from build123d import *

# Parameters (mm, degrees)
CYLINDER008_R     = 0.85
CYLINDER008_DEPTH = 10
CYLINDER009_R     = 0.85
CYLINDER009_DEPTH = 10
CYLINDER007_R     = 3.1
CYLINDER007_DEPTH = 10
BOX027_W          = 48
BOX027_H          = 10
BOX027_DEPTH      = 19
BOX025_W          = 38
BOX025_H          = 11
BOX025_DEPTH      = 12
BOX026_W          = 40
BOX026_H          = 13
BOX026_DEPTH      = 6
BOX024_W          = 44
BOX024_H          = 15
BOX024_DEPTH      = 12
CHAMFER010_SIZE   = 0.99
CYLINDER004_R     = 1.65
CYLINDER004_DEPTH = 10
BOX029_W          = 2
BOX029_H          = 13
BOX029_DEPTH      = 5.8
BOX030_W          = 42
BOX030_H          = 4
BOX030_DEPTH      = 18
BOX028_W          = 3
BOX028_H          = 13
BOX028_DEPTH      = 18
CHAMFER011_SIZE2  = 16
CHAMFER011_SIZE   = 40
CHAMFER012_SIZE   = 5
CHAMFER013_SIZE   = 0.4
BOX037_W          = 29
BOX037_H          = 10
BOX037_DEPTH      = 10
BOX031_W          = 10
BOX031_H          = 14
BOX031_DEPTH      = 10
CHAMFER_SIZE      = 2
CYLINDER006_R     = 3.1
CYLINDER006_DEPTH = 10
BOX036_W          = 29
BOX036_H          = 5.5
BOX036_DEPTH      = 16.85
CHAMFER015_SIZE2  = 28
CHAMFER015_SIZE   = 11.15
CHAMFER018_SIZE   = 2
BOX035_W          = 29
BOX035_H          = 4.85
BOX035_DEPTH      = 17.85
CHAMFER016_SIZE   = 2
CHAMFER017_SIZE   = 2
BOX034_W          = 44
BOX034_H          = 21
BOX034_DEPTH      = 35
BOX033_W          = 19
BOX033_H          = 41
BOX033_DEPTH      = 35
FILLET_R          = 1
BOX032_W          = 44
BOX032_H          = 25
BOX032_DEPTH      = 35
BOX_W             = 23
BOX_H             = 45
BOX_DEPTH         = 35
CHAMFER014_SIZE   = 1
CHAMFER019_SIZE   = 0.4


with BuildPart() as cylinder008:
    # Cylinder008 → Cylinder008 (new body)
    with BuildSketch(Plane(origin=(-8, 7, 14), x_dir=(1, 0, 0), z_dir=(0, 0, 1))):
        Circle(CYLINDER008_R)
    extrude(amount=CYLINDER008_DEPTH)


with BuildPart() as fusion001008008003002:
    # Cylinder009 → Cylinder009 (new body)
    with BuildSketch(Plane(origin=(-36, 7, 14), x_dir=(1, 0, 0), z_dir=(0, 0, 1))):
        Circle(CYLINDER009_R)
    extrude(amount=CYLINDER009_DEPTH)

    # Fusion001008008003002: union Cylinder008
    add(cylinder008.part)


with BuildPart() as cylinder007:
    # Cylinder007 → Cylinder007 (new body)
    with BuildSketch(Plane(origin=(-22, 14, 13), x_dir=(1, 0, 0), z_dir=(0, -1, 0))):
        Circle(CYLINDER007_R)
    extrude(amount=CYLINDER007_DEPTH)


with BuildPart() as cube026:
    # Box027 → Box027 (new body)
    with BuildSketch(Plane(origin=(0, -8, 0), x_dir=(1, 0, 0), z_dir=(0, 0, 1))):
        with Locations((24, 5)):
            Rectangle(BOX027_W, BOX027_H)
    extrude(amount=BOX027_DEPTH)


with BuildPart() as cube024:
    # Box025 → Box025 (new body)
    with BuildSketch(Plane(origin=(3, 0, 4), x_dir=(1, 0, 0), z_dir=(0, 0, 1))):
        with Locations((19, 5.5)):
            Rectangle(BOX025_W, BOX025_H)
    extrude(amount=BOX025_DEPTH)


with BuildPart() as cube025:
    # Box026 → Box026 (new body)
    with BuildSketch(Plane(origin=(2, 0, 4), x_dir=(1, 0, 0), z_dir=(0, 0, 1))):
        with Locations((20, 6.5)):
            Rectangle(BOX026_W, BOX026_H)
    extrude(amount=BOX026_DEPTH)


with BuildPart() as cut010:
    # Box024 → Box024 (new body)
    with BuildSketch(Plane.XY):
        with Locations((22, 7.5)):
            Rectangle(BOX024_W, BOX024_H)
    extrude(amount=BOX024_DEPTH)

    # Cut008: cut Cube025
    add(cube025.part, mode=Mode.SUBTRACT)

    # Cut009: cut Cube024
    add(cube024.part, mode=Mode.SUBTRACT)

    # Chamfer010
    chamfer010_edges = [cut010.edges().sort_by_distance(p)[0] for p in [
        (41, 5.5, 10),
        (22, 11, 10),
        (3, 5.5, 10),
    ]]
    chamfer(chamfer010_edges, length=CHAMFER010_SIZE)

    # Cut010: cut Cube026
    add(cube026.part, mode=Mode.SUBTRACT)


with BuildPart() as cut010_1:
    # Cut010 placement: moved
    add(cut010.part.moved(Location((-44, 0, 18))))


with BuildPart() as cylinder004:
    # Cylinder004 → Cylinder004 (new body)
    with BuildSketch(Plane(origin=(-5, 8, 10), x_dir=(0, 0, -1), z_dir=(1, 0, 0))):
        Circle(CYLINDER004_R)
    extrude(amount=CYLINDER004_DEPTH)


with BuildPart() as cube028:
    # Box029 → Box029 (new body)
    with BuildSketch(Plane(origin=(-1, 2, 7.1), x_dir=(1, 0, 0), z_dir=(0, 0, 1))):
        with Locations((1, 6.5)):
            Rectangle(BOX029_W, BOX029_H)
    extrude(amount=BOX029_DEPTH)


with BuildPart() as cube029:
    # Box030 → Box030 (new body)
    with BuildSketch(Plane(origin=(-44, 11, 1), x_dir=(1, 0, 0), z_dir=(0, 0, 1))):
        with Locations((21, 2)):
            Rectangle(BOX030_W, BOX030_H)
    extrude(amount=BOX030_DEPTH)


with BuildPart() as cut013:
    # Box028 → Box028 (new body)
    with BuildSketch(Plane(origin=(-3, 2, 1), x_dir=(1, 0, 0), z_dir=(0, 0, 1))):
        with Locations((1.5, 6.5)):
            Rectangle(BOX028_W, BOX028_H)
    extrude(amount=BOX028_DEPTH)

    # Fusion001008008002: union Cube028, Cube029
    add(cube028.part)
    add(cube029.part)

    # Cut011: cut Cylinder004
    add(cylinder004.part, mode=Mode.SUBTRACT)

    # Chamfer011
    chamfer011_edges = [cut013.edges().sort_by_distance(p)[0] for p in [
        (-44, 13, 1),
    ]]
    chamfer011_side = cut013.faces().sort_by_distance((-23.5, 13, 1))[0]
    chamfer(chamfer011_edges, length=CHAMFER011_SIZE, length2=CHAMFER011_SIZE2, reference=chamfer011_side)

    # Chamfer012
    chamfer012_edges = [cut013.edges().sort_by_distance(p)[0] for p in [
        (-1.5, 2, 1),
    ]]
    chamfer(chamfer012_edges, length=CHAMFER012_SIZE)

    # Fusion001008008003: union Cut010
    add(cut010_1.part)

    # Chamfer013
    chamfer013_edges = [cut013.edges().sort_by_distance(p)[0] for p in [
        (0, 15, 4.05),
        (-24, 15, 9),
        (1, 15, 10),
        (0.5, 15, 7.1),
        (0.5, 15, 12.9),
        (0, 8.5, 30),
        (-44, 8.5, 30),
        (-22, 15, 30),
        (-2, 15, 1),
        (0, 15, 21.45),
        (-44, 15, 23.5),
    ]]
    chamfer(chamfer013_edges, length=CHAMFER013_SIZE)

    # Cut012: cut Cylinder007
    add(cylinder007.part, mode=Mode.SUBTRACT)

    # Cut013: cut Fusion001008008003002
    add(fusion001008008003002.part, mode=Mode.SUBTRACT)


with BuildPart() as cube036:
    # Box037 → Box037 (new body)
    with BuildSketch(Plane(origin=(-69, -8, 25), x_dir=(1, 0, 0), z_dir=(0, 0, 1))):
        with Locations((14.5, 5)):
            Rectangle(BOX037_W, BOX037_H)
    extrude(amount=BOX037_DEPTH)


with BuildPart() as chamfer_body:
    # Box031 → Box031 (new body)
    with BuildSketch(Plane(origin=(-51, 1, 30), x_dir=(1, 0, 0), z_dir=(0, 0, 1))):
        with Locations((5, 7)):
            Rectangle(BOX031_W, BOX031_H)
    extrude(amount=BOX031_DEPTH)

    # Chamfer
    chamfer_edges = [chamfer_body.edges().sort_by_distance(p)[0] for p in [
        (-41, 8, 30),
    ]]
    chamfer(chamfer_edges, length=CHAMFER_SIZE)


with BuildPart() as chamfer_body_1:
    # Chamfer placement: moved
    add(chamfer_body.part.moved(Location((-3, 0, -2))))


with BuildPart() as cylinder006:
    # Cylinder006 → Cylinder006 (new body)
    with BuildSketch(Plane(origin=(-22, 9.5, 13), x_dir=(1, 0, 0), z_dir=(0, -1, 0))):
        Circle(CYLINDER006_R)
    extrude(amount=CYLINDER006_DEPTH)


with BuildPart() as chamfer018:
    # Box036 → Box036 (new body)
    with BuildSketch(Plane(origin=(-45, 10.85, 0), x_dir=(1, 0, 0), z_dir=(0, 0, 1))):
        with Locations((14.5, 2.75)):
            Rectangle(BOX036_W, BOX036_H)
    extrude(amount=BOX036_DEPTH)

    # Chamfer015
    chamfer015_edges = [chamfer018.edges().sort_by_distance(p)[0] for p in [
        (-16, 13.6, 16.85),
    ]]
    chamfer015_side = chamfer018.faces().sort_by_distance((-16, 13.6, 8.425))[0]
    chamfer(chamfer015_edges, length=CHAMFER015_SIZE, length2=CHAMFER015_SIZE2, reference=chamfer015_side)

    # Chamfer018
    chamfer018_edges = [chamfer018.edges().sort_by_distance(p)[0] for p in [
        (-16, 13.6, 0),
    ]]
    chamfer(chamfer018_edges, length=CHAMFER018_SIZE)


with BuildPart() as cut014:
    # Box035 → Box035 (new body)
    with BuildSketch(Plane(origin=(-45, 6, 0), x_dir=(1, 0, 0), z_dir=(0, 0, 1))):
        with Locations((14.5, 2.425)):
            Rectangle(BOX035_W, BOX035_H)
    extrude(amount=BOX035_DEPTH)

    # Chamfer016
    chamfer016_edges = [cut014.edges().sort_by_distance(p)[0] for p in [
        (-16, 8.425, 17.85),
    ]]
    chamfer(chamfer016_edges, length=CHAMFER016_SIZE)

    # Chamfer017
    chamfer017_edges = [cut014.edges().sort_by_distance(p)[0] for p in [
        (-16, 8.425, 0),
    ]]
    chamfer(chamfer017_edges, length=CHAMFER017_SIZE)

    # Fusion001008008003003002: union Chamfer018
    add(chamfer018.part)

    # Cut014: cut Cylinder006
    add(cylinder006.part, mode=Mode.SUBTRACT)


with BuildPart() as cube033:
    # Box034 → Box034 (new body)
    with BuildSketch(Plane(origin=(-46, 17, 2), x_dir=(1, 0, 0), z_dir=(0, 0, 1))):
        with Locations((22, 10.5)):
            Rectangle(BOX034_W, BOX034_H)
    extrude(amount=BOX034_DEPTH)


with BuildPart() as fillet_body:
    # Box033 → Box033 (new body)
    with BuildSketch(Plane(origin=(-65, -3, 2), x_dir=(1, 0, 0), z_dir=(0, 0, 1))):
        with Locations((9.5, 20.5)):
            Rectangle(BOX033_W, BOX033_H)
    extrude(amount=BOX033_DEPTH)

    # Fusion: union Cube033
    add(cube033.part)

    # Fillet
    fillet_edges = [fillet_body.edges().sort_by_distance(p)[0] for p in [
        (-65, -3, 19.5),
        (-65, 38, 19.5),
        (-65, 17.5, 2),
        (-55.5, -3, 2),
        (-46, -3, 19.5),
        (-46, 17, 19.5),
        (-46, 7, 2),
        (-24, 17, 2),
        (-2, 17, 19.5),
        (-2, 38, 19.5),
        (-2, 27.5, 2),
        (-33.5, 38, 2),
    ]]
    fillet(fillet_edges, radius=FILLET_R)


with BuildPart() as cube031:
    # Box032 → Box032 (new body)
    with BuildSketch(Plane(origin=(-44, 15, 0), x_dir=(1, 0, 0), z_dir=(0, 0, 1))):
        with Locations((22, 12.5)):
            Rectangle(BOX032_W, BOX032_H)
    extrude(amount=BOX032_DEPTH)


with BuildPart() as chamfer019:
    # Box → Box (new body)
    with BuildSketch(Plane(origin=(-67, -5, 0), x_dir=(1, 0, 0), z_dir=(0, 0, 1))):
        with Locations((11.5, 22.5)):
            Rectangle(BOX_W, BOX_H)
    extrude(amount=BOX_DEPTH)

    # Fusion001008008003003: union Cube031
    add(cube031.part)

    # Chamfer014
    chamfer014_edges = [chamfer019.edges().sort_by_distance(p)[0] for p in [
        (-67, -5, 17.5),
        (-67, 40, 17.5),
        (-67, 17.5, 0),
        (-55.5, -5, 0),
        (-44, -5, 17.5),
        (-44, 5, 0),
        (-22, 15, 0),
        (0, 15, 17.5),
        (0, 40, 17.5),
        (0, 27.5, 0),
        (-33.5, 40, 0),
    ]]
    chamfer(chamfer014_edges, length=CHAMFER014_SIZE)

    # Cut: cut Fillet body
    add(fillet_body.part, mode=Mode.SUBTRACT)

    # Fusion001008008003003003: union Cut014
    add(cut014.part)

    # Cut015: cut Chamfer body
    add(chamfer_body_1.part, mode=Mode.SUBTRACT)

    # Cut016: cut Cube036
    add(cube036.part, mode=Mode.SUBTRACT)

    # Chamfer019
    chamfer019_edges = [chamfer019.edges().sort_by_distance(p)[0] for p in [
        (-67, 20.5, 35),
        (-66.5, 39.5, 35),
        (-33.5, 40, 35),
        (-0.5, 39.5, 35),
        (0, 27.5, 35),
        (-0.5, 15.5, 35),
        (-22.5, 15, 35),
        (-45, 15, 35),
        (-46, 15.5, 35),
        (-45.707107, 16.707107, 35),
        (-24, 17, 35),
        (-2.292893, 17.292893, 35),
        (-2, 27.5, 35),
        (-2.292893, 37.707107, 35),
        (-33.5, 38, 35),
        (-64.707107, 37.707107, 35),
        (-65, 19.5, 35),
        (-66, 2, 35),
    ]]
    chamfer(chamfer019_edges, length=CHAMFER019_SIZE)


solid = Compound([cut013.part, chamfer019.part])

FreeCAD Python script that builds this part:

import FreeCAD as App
import Part
import Sketcher
from FreeCAD import Vector


def edges_at(feature, points):
    """Names of the edges that pass closest to the given points."""
    edges = feature.Shape.Edges
    near = lambda p: min(range(len(edges)), key=lambda i: edges[i].distToShape(Part.Vertex(*p))[0])
    return sorted({f"Edge{near(p) + 1}" for p in points})

doc = App.newDocument("Part")
body = doc.addObject("PartDesign::Body", "Body")

# Sketch on XY plane
sketch1 = doc.addObject("Sketcher::SketchObject", "Sketch")
body.addObject(sketch1)
sketch1.AttachmentSupport = (doc.XY_Plane, [""])
sketch1.MapMode = "FlatFace"
sketch1.AttachmentOffset = App.Placement(Vector(0, 0, 14), App.Rotation())
sketch1.addGeometry(Part.Circle(Vector(-8, 7, 0), Vector(0, 0, 1), 0.85), False)
sketch1.addConstraint([
    Sketcher.Constraint("Diameter", 0, 1.7),
    Sketcher.Constraint("DistanceX", 0, 3, -1, 1, 8.0),
    Sketcher.Constraint("DistanceY", -1, 1, 0, 3, 7.0),
])
pad1 = doc.addObject("PartDesign::Pad", "Pad")
body.addObject(pad1)
pad1.Profile = sketch1
pad1.Length = 10
body2 = doc.addObject("PartDesign::Body", "Body001")
body2.AllowCompound = True

# Sketch on XY plane
sketch2 = doc.addObject("Sketcher::SketchObject", "Sketch001")
body2.addObject(sketch2)
sketch2.AttachmentSupport = (doc.getObject("XY_Plane001"), [""])
sketch2.MapMode = "FlatFace"
sketch2.AttachmentOffset = App.Placement(Vector(0, 0, 14), App.Rotation())
sketch2.addGeometry(Part.Circle(Vector(-36, 7, 0), Vector(0, 0, 1), 0.85), False)
sketch2.addConstraint([
    Sketcher.Constraint("Diameter", 0, 1.7),
    Sketcher.Constraint("DistanceX", 0, 3, -1, 1, 36.0),
    Sketcher.Constraint("DistanceY", -1, 1, 0, 3, 7.0),
])
pad2 = doc.addObject("PartDesign::Pad", "Pad001")
body2.addObject(pad2)
pad2.Profile = sketch2
pad2.Length = 10
doc.recompute()

boolean = doc.addObject("PartDesign::Boolean", "Boolean")
body2.addObject(boolean)
boolean.Type = "Fuse"
boolean.addObjects([body])
body3 = doc.addObject("PartDesign::Body", "Body002")

# Sketch on XZ plane
sketch3 = doc.addObject("Sketcher::SketchObject", "Sketch002")
body3.addObject(sketch3)
sketch3.AttachmentSupport = (doc.getObject("XZ_Plane002"), [""])
sketch3.MapMode = "FlatFace"
sketch3.AttachmentOffset = App.Placement(Vector(0, 0, -14), App.Rotation())
sketch3.addGeometry(Part.Circle(Vector(-22, 13, 0), Vector(0, 0, 1), 3.1), False)
sketch3.addConstraint([
    Sketcher.Constraint("Diameter", 0, 6.2),
    Sketcher.Constraint("DistanceX", 0, 3, -1, 1, 22.0),
    Sketcher.Constraint("DistanceY", -1, 1, 0, 3, 13.0),
])
pad3 = doc.addObject("PartDesign::Pad", "Pad002")
body3.addObject(pad3)
pad3.Profile = sketch3
pad3.Length = 10
body4 = doc.addObject("PartDesign::Body", "Body003")

# Sketch on XY plane
sketch4 = doc.addObject("Sketcher::SketchObject", "Sketch003")
body4.addObject(sketch4)
sketch4.AttachmentSupport = (doc.getObject("XY_Plane003"), [""])
sketch4.MapMode = "FlatFace"
sketch4.addGeometry([
    Part.LineSegment(Vector(0, 2, 0), Vector(0, -8, 0)),
    Part.LineSegment(Vector(0, -8, 0), Vector(48, -8, 0)),
    Part.LineSegment(Vector(48, -8, 0), Vector(48, 2, 0)),
    Part.LineSegment(Vector(48, 2, 0), Vector(0, 2, 0)),
], False)
sketch4.addConstraint([
    Sketcher.Constraint("Coincident", 0, 2, 1, 1),
    Sketcher.Constraint("Coincident", 1, 2, 2, 1),
    Sketcher.Constraint("Coincident", 2, 2, 3, 1),
    Sketcher.Constraint("Coincident", 3, 2, 0, 1),
    Sketcher.Constraint("Vertical", 0),
    Sketcher.Constraint("Horizontal", 1),
    Sketcher.Constraint("Vertical", 2),
    Sketcher.Constraint("Horizontal", 3),
    Sketcher.Constraint("PointOnObject", 0, 2, -2),
    Sketcher.Constraint("DistanceX", 1, 1, 1, 2, 48.0),
    Sketcher.Constraint("DistanceY", 0, 2, 0, 1, 10.0),
    Sketcher.Constraint("DistanceY", 0, 2, -1, 1, 8.0),
])
pad4 = doc.addObject("PartDesign::Pad", "Pad003")
body4.addObject(pad4)
pad4.Profile = sketch4
pad4.Length = 19
body5 = doc.addObject("PartDesign::Body", "Body004")

# Sketch on XY plane
sketch5 = doc.addObject("Sketcher::SketchObject", "Sketch004")
body5.addObject(sketch5)
sketch5.AttachmentSupport = (doc.getObject("XY_Plane004"), [""])
sketch5.MapMode = "FlatFace"
sketch5.AttachmentOffset = App.Placement(Vector(0, 0, 4), App.Rotation())
sketch5.addGeometry([
    Part.LineSegment(Vector(3, 11, 0), Vector(3, 0, 0)),
    Part.LineSegment(Vector(3, 0, 0), Vector(41, 0, 0)),
    Part.LineSegment(Vector(41, 0, 0), Vector(41, 11, 0)),
    Part.LineSegment(Vector(41, 11, 0), Vector(3, 11, 0)),
], False)
sketch5.addConstraint([
    Sketcher.Constraint("Coincident", 0, 2, 1, 1),
    Sketcher.Constraint("Coincident", 1, 2, 2, 1),
    Sketcher.Constraint("Coincident", 2, 2, 3, 1),
    Sketcher.Constraint("Coincident", 3, 2, 0, 1),
    Sketcher.Constraint("Vertical", 0),
    Sketcher.Constraint("Horizontal", 1),
    Sketcher.Constraint("Vertical", 2),
    Sketcher.Constraint("Horizontal", 3),
    Sketcher.Constraint("PointOnObject", 0, 2, -1),
    Sketcher.Constraint("DistanceX", 1, 1, 1, 2, 38.0),
    Sketcher.Constraint("DistanceY", 0, 2, 0, 1, 11.0),
    Sketcher.Constraint("DistanceX", -1, 1, 0, 2, 3.0),
])
pad5 = doc.addObject("PartDesign::Pad", "Pad004")
body5.addObject(pad5)
pad5.Profile = sketch5
pad5.Length = 12
body6 = doc.addObject("PartDesign::Body", "Body005")

# Sketch on XY plane
sketch6 = doc.addObject("Sketcher::SketchObject", "Sketch005")
body6.addObject(sketch6)
sketch6.AttachmentSupport = (doc.getObject("XY_Plane005"), [""])
sketch6.MapMode = "FlatFace"
sketch6.AttachmentOffset = App.Placement(Vector(0, 0, 4), App.Rotation())
sketch6.addGeometry([
    Part.LineSegment(Vector(2, 13, 0), Vector(2, 0, 0)),
    Part.LineSegment(Vector(2, 0, 0), Vector(42, 0, 0)),
    Part.LineSegment(Vector(42, 0, 0), Vector(42, 13, 0)),
    Part.LineSegment(Vector(42, 13, 0), Vector(2, 13, 0)),
], False)
sketch6.addConstraint([
    Sketcher.Constraint("Coincident", 0, 2, 1, 1),
    Sketcher.Constraint("Coincident", 1, 2, 2, 1),
    Sketcher.Constraint("Coincident", 2, 2, 3, 1),
    Sketcher.Constraint("Coincident", 3, 2, 0, 1),
    Sketcher.Constraint("Vertical", 0),
    Sketcher.Constraint("Horizontal", 1),
    Sketcher.Constraint("Vertical", 2),
    Sketcher.Constraint("Horizontal", 3),
    Sketcher.Constraint("PointOnObject", 0, 2, -1),
    Sketcher.Constraint("DistanceX", 1, 1, 1, 2, 40.0),
    Sketcher.Constraint("DistanceY", 0, 2, 0, 1, 13.0),
    Sketcher.Constraint("DistanceX", -1, 1, 0, 2, 2.0),
])
pad6 = doc.addObject("PartDesign::Pad", "Pad005")
body6.addObject(pad6)
pad6.Profile = sketch6
pad6.Length = 6
body7 = doc.addObject("PartDesign::Body", "Body006")

# Sketch on XY plane
sketch7 = doc.addObject("Sketcher::SketchObject", "Sketch006")
body7.addObject(sketch7)
sketch7.AttachmentSupport = (doc.getObject("XY_Plane006"), [""])
sketch7.MapMode = "FlatFace"
sketch7.addGeometry([
    Part.LineSegment(Vector(0, 15, 0), Vector(0, 0, 0)),
    Part.LineSegment(Vector(0, 0, 0), Vector(44, 0, 0)),
    Part.LineSegment(Vector(44, 0, 0), Vector(44, 15, 0)),
    Part.LineSegment(Vector(44, 15, 0), Vector(0, 15, 0)),
], False)
sketch7.addConstraint([
    Sketcher.Constraint("Coincident", 0, 2, 1, 1),
    Sketcher.Constraint("Coincident", 1, 2, 2, 1),
    Sketcher.Constraint("Coincident", 2, 2, 3, 1),
    Sketcher.Constraint("Coincident", 3, 2, 0, 1),
    Sketcher.Constraint("Vertical", 0),
    Sketcher.Constraint("Horizontal", 1),
    Sketcher.Constraint("Vertical", 2),
    Sketcher.Constraint("Horizontal", 3),
    Sketcher.Constraint("Coincident", 0, 2, -1, 1),
    Sketcher.Constraint("DistanceX", 1, 1, 1, 2, 44.0),
    Sketcher.Constraint("DistanceY", 0, 2, 0, 1, 15.0),
])
pad7 = doc.addObject("PartDesign::Pad", "Pad006")
body7.addObject(pad7)
pad7.Profile = sketch7
pad7.Length = 12
doc.recompute()

boolean2 = doc.addObject("PartDesign::Boolean", "Boolean001")
body7.addObject(boolean2)
boolean2.Type = "Cut"
boolean2.addObjects([body6])
doc.recompute()

boolean3 = doc.addObject("PartDesign::Boolean", "Boolean002")
body7.addObject(boolean3)
boolean3.Type = "Cut"
boolean3.addObjects([body5])
doc.recompute()

chamfer = doc.addObject("PartDesign::Chamfer", "Chamfer")
body7.addObject(chamfer)
chamfer.Base = (boolean3, edges_at(boolean3, [(41, 5.5, 10), (22, 11, 10), (3, 5.5, 10)]))
chamfer.Size = 0.99
doc.recompute()

boolean4 = doc.addObject("PartDesign::Boolean", "Boolean003")
body7.addObject(boolean4)
boolean4.Type = "Cut"
boolean4.addObjects([body4])
body8 = doc.addObject("PartDesign::Body", "Body007")
doc.recompute()

body7.Placement = App.Placement(Vector(-44, 0, 18), App.Rotation(Vector(0, 0, 1), 0))
boolean5 = doc.addObject("PartDesign::Boolean", "Boolean004")
body8.addObject(boolean5)
boolean5.Type = "Fuse"
boolean5.addObjects([body7])
body9 = doc.addObject("PartDesign::Body", "Body008")

# Sketch on YZ plane
sketch8 = doc.addObject("Sketcher::SketchObject", "Sketch007")
body9.addObject(sketch8)
sketch8.AttachmentSupport = (doc.getObject("YZ_Plane008"), [""])
sketch8.MapMode = "FlatFace"
sketch8.AttachmentOffset = App.Placement(Vector(0, 0, -5), App.Rotation())
sketch8.addGeometry(Part.Circle(Vector(8, 10, 0), Vector(0, 0, 1), 1.65), False)
sketch8.addConstraint([
    Sketcher.Constraint("Diameter", 0, 3.3),
    Sketcher.Constraint("DistanceX", -1, 1, 0, 3, 8.0),
    Sketcher.Constraint("DistanceY", -1, 1, 0, 3, 10.0),
])
pad8 = doc.addObject("PartDesign::Pad", "Pad007")
body9.addObject(pad8)
pad8.Profile = sketch8
pad8.Length = 10
body10 = doc.addObject("PartDesign::Body", "Body009")

# Sketch on XY plane
sketch9 = doc.addObject("Sketcher::SketchObject", "Sketch008")
body10.addObject(sketch9)
sketch9.AttachmentSupport = (doc.getObject("XY_Plane009"), [""])
sketch9.MapMode = "FlatFace"
sketch9.AttachmentOffset = App.Placement(Vector(0, 0, 7.1), App.Rotation())
sketch9.addGeometry([
    Part.LineSegment(Vector(-1, 15, 0), Vector(-1, 2, 0)),
    Part.LineSegment(Vector(-1, 2, 0), Vector(1, 2, 0)),
    Part.LineSegment(Vector(1, 2, 0), Vector(1, 15, 0)),
    Part.LineSegment(Vector(1, 15, 0), Vector(-1, 15, 0)),
], False)
sketch9.addConstraint([
    Sketcher.Constraint("Coincident", 0, 2, 1, 1),
    Sketcher.Constraint("Coincident", 1, 2, 2, 1),
    Sketcher.Constraint("Coincident", 2, 2, 3, 1),
    Sketcher.Constraint("Coincident", 3, 2, 0, 1),
    Sketcher.Constraint("Vertical", 0),
    Sketcher.Constraint("Horizontal", 1),
    Sketcher.Constraint("Vertical", 2),
    Sketcher.Constraint("Horizontal", 3),
    Sketcher.Constraint("DistanceX", 1, 1, 1, 2, 2.0),
    Sketcher.Constraint("DistanceY", 0, 2, 0, 1, 13.0),
    Sketcher.Constraint("DistanceX", 0, 2, -1, 1, 1.0),
    Sketcher.Constraint("DistanceY", -1, 1, 0, 2, 2.0),
])
pad9 = doc.addObject("PartDesign::Pad", "Pad008")
body10.addObject(pad9)
pad9.Profile = sketch9
pad9.Length = 5.8
body11 = doc.addObject("PartDesign::Body", "Body010")

# Sketch on XY plane
sketch10 = doc.addObject("Sketcher::SketchObject", "Sketch009")
body11.addObject(sketch10)
sketch10.AttachmentSupport = (doc.getObject("XY_Plane010"), [""])
sketch10.MapMode = "FlatFace"
sketch10.AttachmentOffset = App.Placement(Vector(0, 0, 1), App.Rotation())
sketch10.addGeometry([
    Part.LineSegment(Vector(-44, 15, 0), Vector(-44, 11, 0)),
    Part.LineSegment(Vector(-44, 11, 0), Vector(-2, 11, 0)),
    Part.LineSegment(Vector(-2, 11, 0), Vector(-2, 15, 0)),
    Part.LineSegment(Vector(-2, 15, 0), Vector(-44, 15, 0)),
], False)
sketch10.addConstraint([
    Sketcher.Constraint("Coincident", 0, 2, 1, 1),
    Sketcher.Constraint("Coincident", 1, 2, 2, 1),
    Sketcher.Constraint("Coincident", 2, 2, 3, 1),
    Sketcher.Constraint("Coincident", 3, 2, 0, 1),
    Sketcher.Constraint("Vertical", 0),
    Sketcher.Constraint("Horizontal", 1),
    Sketcher.Constraint("Vertical", 2),
    Sketcher.Constraint("Horizontal", 3),
    Sketcher.Constraint("DistanceX", 1, 1, 1, 2, 42.0),
    Sketcher.Constraint("DistanceY", 0, 2, 0, 1, 4.0),
    Sketcher.Constraint("DistanceX", 0, 2, -1, 1, 44.0),
    Sketcher.Constraint("DistanceY", -1, 1, 0, 2, 11.0),
])
pad10 = doc.addObject("PartDesign::Pad", "Pad009")
body11.addObject(pad10)
pad10.Profile = sketch10
pad10.Length = 18
body12 = doc.addObject("PartDesign::Body", "Body011")

# Sketch on XY plane
sketch11 = doc.addObject("Sketcher::SketchObject", "Sketch010")
body12.addObject(sketch11)
sketch11.AttachmentSupport = (doc.getObject("XY_Plane011"), [""])
sketch11.MapMode = "FlatFace"
sketch11.AttachmentOffset = App.Placement(Vector(0, 0, 1), App.Rotation())
sketch11.addGeometry([
    Part.LineSegment(Vector(-3, 15, 0), Vector(-3, 2, 0)),
    Part.LineSegment(Vector(-3, 2, 0), Vector(0, 2, 0)),
    Part.LineSegment(Vector(0, 2, 0), Vector(0, 15, 0)),
    Part.LineSegment(Vector(0, 15, 0), Vector(-3, 15, 0)),
], False)
sketch11.addConstraint([
    Sketcher.Constraint("Coincident", 0, 2, 1, 1),
    Sketcher.Constraint("Coincident", 1, 2, 2, 1),
    Sketcher.Constraint("Coincident", 2, 2, 3, 1),
    Sketcher.Constraint("Coincident", 3, 2, 0, 1),
    Sketcher.Constraint("Vertical", 0),
    Sketcher.Constraint("Horizontal", 1),
    Sketcher.Constraint("Vertical", 2),
    Sketcher.Constraint("Horizontal", 3),
    Sketcher.Constraint("PointOnObject", 1, 2, -2),
    Sketcher.Constraint("DistanceX", 1, 1, 1, 2, 3.0),
    Sketcher.Constraint("DistanceY", 0, 2, 0, 1, 13.0),
    Sketcher.Constraint("DistanceY", -1, 1, 0, 2, 2.0),
])
pad11 = doc.addObject("PartDesign::Pad", "Pad010")
body12.addObject(pad11)
pad11.Profile = sketch11
pad11.Length = 18
doc.recompute()

boolean6 = doc.addObject("PartDesign::Boolean", "Boolean005")
body12.addObject(boolean6)
boolean6.Type = "Fuse"
boolean6.addObjects([body10])
doc.recompute()

boolean7 = doc.addObject("PartDesign::Boolean", "Boolean006")
body12.addObject(boolean7)
boolean7.Type = "Fuse"
boolean7.addObjects([body11])
doc.recompute()

boolean8 = doc.addObject("PartDesign::Boolean", "Boolean007")
body12.addObject(boolean8)
boolean8.Type = "Cut"
boolean8.addObjects([body9])
doc.recompute()

chamfer2 = doc.addObject("PartDesign::Chamfer", "Chamfer001")
body12.addObject(chamfer2)
chamfer2.Base = (boolean8, edges_at(boolean8, [(-44, 13, 1)]))
chamfer2.ChamferType = "Two distances"
chamfer2.Size = 40
chamfer2.Size2 = 16
doc.recompute()

chamfer3 = doc.addObject("PartDesign::Chamfer", "Chamfer002")
body12.addObject(chamfer3)
chamfer3.Base = (chamfer2, edges_at(chamfer2, [(-1.5, 2, 1)]))
chamfer3.Size = 5
doc.recompute()

boolean9 = doc.addObject("PartDesign::Boolean", "Boolean008")
body12.addObject(boolean9)
boolean9.Type = "Fuse"
boolean9.addObjects([body8])
doc.recompute()

chamfer4 = doc.addObject("PartDesign::Chamfer", "Chamfer003")
body12.addObject(chamfer4)
chamfer4.Base = (boolean9, edges_at(boolean9, [
    (0, 15, 4.05),
    (-24, 15, 9),
    (1, 15, 10),
    (0.5, 15, 7.1),
    (0.5, 15, 12.9),
    (0, 8.5, 30),
    (-44, 8.5, 30),
    (-22, 15, 30),
    (-2, 15, 1),
    (0, 15, 21.45),
    (-44, 15, 23.5),
]))
chamfer4.Size = 0.4
doc.recompute()

boolean10 = doc.addObject("PartDesign::Boolean", "Boolean009")
body12.addObject(boolean10)
boolean10.Type = "Cut"
boolean10.addObjects([body3])
doc.recompute()

boolean11 = doc.addObject("PartDesign::Boolean", "Boolean010")
body12.addObject(boolean11)
boolean11.Type = "Cut"
boolean11.addObjects([body2])
body13 = doc.addObject("PartDesign::Body", "Body012")

# Sketch on XY plane
sketch12 = doc.addObject("Sketcher::SketchObject", "Sketch011")
body13.addObject(sketch12)
sketch12.AttachmentSupport = (doc.getObject("XY_Plane012"), [""])
sketch12.MapMode = "FlatFace"
sketch12.AttachmentOffset = App.Placement(Vector(0, 0, 25), App.Rotation())
sketch12.addGeometry([
    Part.LineSegment(Vector(-69, 2, 0), Vector(-69, -8, 0)),
    Part.LineSegment(Vector(-69, -8, 0), Vector(-40, -8, 0)),
    Part.LineSegment(Vector(-40, -8, 0), Vector(-40, 2, 0)),
    Part.LineSegment(Vector(-40, 2, 0), Vector(-69, 2, 0)),
], False)
sketch12.addConstraint([
    Sketcher.Constraint("Coincident", 0, 2, 1, 1),
    Sketcher.Constraint("Coincident", 1, 2, 2, 1),
    Sketcher.Constraint("Coincident", 2, 2, 3, 1),
    Sketcher.Constraint("Coincident", 3, 2, 0, 1),
    Sketcher.Constraint("Vertical", 0),
    Sketcher.Constraint("Horizontal", 1),
    Sketcher.Constraint("Vertical", 2),
    Sketcher.Constraint("Horizontal", 3),
    Sketcher.Constraint("DistanceX", 1, 1, 1, 2, 29.0),
    Sketcher.Constraint("DistanceY", 0, 2, 0, 1, 10.0),
    Sketcher.Constraint("DistanceX", 0, 2, -1, 1, 69.0),
    Sketcher.Constraint("DistanceY", 0, 2, -1, 1, 8.0),
])
pad12 = doc.addObject("PartDesign::Pad", "Pad011")
body13.addObject(pad12)
pad12.Profile = sketch12
pad12.Length = 10
body14 = doc.addObject("PartDesign::Body", "Body013")

# Sketch on XY plane
sketch13 = doc.addObject("Sketcher::SketchObject", "Sketch012")
body14.addObject(sketch13)
sketch13.AttachmentSupport = (doc.getObject("XY_Plane013"), [""])
sketch13.MapMode = "FlatFace"
sketch13.AttachmentOffset = App.Placement(Vector(0, 0, 30), App.Rotation())
sketch13.addGeometry([
    Part.LineSegment(Vector(-51, 15, 0), Vector(-51, 1, 0)),
    Part.LineSegment(Vector(-51, 1, 0), Vector(-41, 1, 0)),
    Part.LineSegment(Vector(-41, 1, 0), Vector(-41, 15, 0)),
    Part.LineSegment(Vector(-41, 15, 0), Vector(-51, 15, 0)),
], False)
sketch13.addConstraint([
    Sketcher.Constraint("Coincident", 0, 2, 1, 1),
    Sketcher.Constraint("Coincident", 1, 2, 2, 1),
    Sketcher.Constraint("Coincident", 2, 2, 3, 1),
    Sketcher.Constraint("Coincident", 3, 2, 0, 1),
    Sketcher.Constraint("Vertical", 0),
    Sketcher.Constraint("Horizontal", 1),
    Sketcher.Constraint("Vertical", 2),
    Sketcher.Constraint("Horizontal", 3),
    Sketcher.Constraint("DistanceX", 1, 1, 1, 2, 10.0),
    Sketcher.Constraint("DistanceY", 0, 2, 0, 1, 14.0),
    Sketcher.Constraint("DistanceX", 0, 2, -1, 1, 51.0),
    Sketcher.Constraint("DistanceY", -1, 1, 0, 2, 1.0),
])
pad13 = doc.addObject("PartDesign::Pad", "Pad012")
body14.addObject(pad13)
pad13.Profile = sketch13
pad13.Length = 10
doc.recompute()

chamfer5 = doc.addObject("PartDesign::Chamfer", "Chamfer004")
body14.addObject(chamfer5)
chamfer5.Base = (pad13, edges_at(pad13, [(-41, 8, 30)]))
chamfer5.Size = 2
body15 = doc.addObject("PartDesign::Body", "Body014")
doc.recompute()

body14.Placement = App.Placement(Vector(-3, 0, -2), App.Rotation(Vector(0, 0, 1), 0))
boolean12 = doc.addObject("PartDesign::Boolean", "Boolean011")
body15.addObject(boolean12)
boolean12.Type = "Fuse"
boolean12.addObjects([body14])
body16 = doc.addObject("PartDesign::Body", "Body015")

# Sketch on XZ plane
sketch14 = doc.addObject("Sketcher::SketchObject", "Sketch013")
body16.addObject(sketch14)
sketch14.AttachmentSupport = (doc.getObject("XZ_Plane015"), [""])
sketch14.MapMode = "FlatFace"
sketch14.AttachmentOffset = App.Placement(Vector(0, 0, -9.5), App.Rotation())
sketch14.addGeometry(Part.Circle(Vector(-22, 13, 0), Vector(0, 0, 1), 3.1), False)
sketch14.addConstraint([
    Sketcher.Constraint("Diameter", 0, 6.2),
    Sketcher.Constraint("DistanceX", 0, 3, -1, 1, 22.0),
    Sketcher.Constraint("DistanceY", -1, 1, 0, 3, 13.0),
])
pad14 = doc.addObject("PartDesign::Pad", "Pad013")
body16.addObject(pad14)
pad14.Profile = sketch14
pad14.Length = 10
body17 = doc.addObject("PartDesign::Body", "Body016")

# Sketch on XY plane
sketch15 = doc.addObject("Sketcher::SketchObject", "Sketch014")
body17.addObject(sketch15)
sketch15.AttachmentSupport = (doc.getObject("XY_Plane016"), [""])
sketch15.MapMode = "FlatFace"
sketch15.addGeometry([
    Part.LineSegment(Vector(-45, 16.35, 0), Vector(-45, 10.85, 0)),
    Part.LineSegment(Vector(-45, 10.85, 0), Vector(-16, 10.85, 0)),
    Part.LineSegment(Vector(-16, 10.85, 0), Vector(-16, 16.35, 0)),
    Part.LineSegment(Vector(-16, 16.35, 0), Vector(-45, 16.35, 0)),
], False)
sketch15.addConstraint([
    Sketcher.Constraint("Coincident", 0, 2, 1, 1),
    Sketcher.Constraint("Coincident", 1, 2, 2, 1),
    Sketcher.Constraint("Coincident", 2, 2, 3, 1),
    Sketcher.Constraint("Coincident", 3, 2, 0, 1),
    Sketcher.Constraint("Vertical", 0),
    Sketcher.Constraint("Horizontal", 1),
    Sketcher.Constraint("Vertical", 2),
    Sketcher.Constraint("Horizontal", 3),
    Sketcher.Constraint("DistanceX", 1, 1, 1, 2, 29.0),
    Sketcher.Constraint("DistanceY", 0, 2, 0, 1, 5.5),
    Sketcher.Constraint("DistanceX", 0, 2, -1, 1, 45.0),
    Sketcher.Constraint("DistanceY", -1, 1, 0, 2, 10.85),
])
pad15 = doc.addObject("PartDesign::Pad", "Pad014")
body17.addObject(pad15)
pad15.Profile = sketch15
pad15.Length = 16.85
doc.recompute()

chamfer6 = doc.addObject("PartDesign::Chamfer", "Chamfer005")
body17.addObject(chamfer6)
chamfer6.Base = (pad15, edges_at(pad15, [(-16, 13.6, 16.85)]))
chamfer6.ChamferType = "Two distances"
chamfer6.Size = 11.15
chamfer6.Size2 = 28
doc.recompute()

chamfer7 = doc.addObject("PartDesign::Chamfer", "Chamfer006")
body17.addObject(chamfer7)
chamfer7.Base = (chamfer6, edges_at(chamfer6, [(-16, 13.6, 0)]))
chamfer7.Size = 2
body18 = doc.addObject("PartDesign::Body", "Body017")

# Sketch on XY plane
sketch16 = doc.addObject("Sketcher::SketchObject", "Sketch015")
body18.addObject(sketch16)
sketch16.AttachmentSupport = (doc.getObject("XY_Plane017"), [""])
sketch16.MapMode = "FlatFace"
sketch16.addGeometry([
    Part.LineSegment(Vector(-45, 10.85, 0), Vector(-45, 6, 0)),
    Part.LineSegment(Vector(-45, 6, 0), Vector(-16, 6, 0)),
    Part.LineSegment(Vector(-16, 6, 0), Vector(-16, 10.85, 0)),
    Part.LineSegment(Vector(-16, 10.85, 0), Vector(-45, 10.85, 0)),
], False)
sketch16.addConstraint([
    Sketcher.Constraint("Coincident", 0, 2, 1, 1),
    Sketcher.Constraint("Coincident", 1, 2, 2, 1),
    Sketcher.Constraint("Coincident", 2, 2, 3, 1),
    Sketcher.Constraint("Coincident", 3, 2, 0, 1),
    Sketcher.Constraint("Vertical", 0),
    Sketcher.Constraint("Horizontal", 1),
    Sketcher.Constraint("Vertical", 2),
    Sketcher.Constraint("Horizontal", 3),
    Sketcher.Constraint("DistanceX", 1, 1, 1, 2, 29.0),
    Sketcher.Constraint("DistanceX", 0, 2, -1, 1, 45.0),
    Sketcher.Constraint("DistanceY", -1, 1, 0, 2, 6.0),
    Sketcher.Constraint("DistanceY", 0, 2, 0, 1, 4.85),
])
pad16 = doc.addObject("PartDesign::Pad", "Pad015")
body18.addObject(pad16)
pad16.Profile = sketch16
pad16.Length = 17.85
doc.recompute()

chamfer8 = doc.addObject("PartDesign::Chamfer", "Chamfer007")
body18.addObject(chamfer8)
chamfer8.Base = (pad16, edges_at(pad16, [(-16, 8.425, 17.85)]))
chamfer8.Size = 2
doc.recompute()

chamfer9 = doc.addObject("PartDesign::Chamfer", "Chamfer008")
body18.addObject(chamfer9)
chamfer9.Base = (chamfer8, edges_at(chamfer8, [(-16, 8.425, 0)]))
chamfer9.Size = 2
doc.recompute()

boolean13 = doc.addObject("PartDesign::Boolean", "Boolean012")
body18.addObject(boolean13)
boolean13.Type = "Fuse"
boolean13.addObjects([body17])
doc.recompute()

boolean14 = doc.addObject("PartDesign::Boolean", "Boolean013")
body18.addObject(boolean14)
boolean14.Type = "Cut"
boolean14.addObjects([body16])
body19 = doc.addObject("PartDesign::Body", "Body018")

# Sketch on XY plane
sketch17 = doc.addObject("Sketcher::SketchObject", "Sketch016")
body19.addObject(sketch17)
sketch17.AttachmentSupport = (doc.getObject("XY_Plane018"), [""])
sketch17.MapMode = "FlatFace"
sketch17.AttachmentOffset = App.Placement(Vector(0, 0, 2), App.Rotation())
sketch17.addGeometry([
    Part.LineSegment(Vector(-46, 38, 0), Vector(-46, 17, 0)),
    Part.LineSegment(Vector(-46, 17, 0), Vector(-2, 17, 0)),
    Part.LineSegment(Vector(-2, 17, 0), Vector(-2, 38, 0)),
    Part.LineSegment(Vector(-2, 38, 0), Vector(-46, 38, 0)),
], False)
sketch17.addConstraint([
    Sketcher.Constraint("Coincident", 0, 2, 1, 1),
    Sketcher.Constraint("Coincident", 1, 2, 2, 1),
    Sketcher.Constraint("Coincident", 2, 2, 3, 1),
    Sketcher.Constraint("Coincident", 3, 2, 0, 1),
    Sketcher.Constraint("Vertical", 0),
    Sketcher.Constraint("Horizontal", 1),
    Sketcher.Constraint("Vertical", 2),
    Sketcher.Constraint("Horizontal", 3),
    Sketcher.Constraint("DistanceX", 1, 1, 1, 2, 44.0),
    Sketcher.Constraint("DistanceY", 0, 2, 0, 1, 21.0),
    Sketcher.Constraint("DistanceX", 0, 2, -1, 1, 46.0),
    Sketcher.Constraint("DistanceY", -1, 1, 0, 2, 17.0),
])
pad17 = doc.addObject("PartDesign::Pad", "Pad016")
body19.addObject(pad17)
pad17.Profile = sketch17
pad17.Length = 35
body20 = doc.addObject("PartDesign::Body", "Body019")

# Sketch on XY plane
sketch18 = doc.addObject("Sketcher::SketchObject", "Sketch017")
body20.addObject(sketch18)
sketch18.AttachmentSupport = (doc.getObject("XY_Plane019"), [""])
sketch18.MapMode = "FlatFace"
sketch18.AttachmentOffset = App.Placement(Vector(0, 0, 2), App.Rotation())
sketch18.addGeometry([
    Part.LineSegment(Vector(-65, 38, 0), Vector(-65, -3, 0)),
    Part.LineSegment(Vector(-65, -3, 0), Vector(-46, -3, 0)),
    Part.LineSegment(Vector(-46, -3, 0), Vector(-46, 38, 0)),
    Part.LineSegment(Vector(-46, 38, 0), Vector(-65, 38, 0)),
], False)
sketch18.addConstraint([
    Sketcher.Constraint("Coincident", 0, 2, 1, 1),
    Sketcher.Constraint("Coincident", 1, 2, 2, 1),
    Sketcher.Constraint("Coincident", 2, 2, 3, 1),
    Sketcher.Constraint("Coincident", 3, 2, 0, 1),
    Sketcher.Constraint("Vertical", 0),
    Sketcher.Constraint("Horizontal", 1),
    Sketcher.Constraint("Vertical", 2),
    Sketcher.Constraint("Horizontal", 3),
    Sketcher.Constraint("DistanceX", 1, 1, 1, 2, 19.0),
    Sketcher.Constraint("DistanceY", 0, 2, 0, 1, 41.0),
    Sketcher.Constraint("DistanceX", 0, 2, -1, 1, 65.0),
    Sketcher.Constraint("DistanceY", 0, 2, -1, 1, 3.0),
])
pad18 = doc.addObject("PartDesign::Pad", "Pad017")
body20.addObject(pad18)
pad18.Profile = sketch18
pad18.Length = 35
doc.recompute()

boolean15 = doc.addObject("PartDesign::Boolean", "Boolean014")
body20.addObject(boolean15)
boolean15.Type = "Fuse"
boolean15.addObjects([body19])
doc.recompute()

fillet = doc.addObject("PartDesign::Fillet", "Fillet")
body20.addObject(fillet)
fillet.Base = (boolean15, edges_at(boolean15, [
    (-65, -3, 19.5),
    (-65, 38, 19.5),
    (-65, 17.5, 2),
    (-55.5, -3, 2),
    (-46, -3, 19.5),
    (-46, 17, 19.5),
    (-46, 7, 2),
    (-24, 17, 2),
    (-2, 17, 19.5),
    (-2, 38, 19.5),
    (-2, 27.5, 2),
    (-33.5, 38, 2),
]))
fillet.Radius = 1
body21 = doc.addObject("PartDesign::Body", "Body020")

# Sketch on XY plane
sketch19 = doc.addObject("Sketcher::SketchObject", "Sketch018")
body21.addObject(sketch19)
sketch19.AttachmentSupport = (doc.getObject("XY_Plane020"), [""])
sketch19.MapMode = "FlatFace"
sketch19.addGeometry([
    Part.LineSegment(Vector(-44, 40, 0), Vector(-44, 15, 0)),
    Part.LineSegment(Vector(-44, 15, 0), Vector(0, 15, 0)),
    Part.LineSegment(Vector(0, 15, 0), Vector(0, 40, 0)),
    Part.LineSegment(Vector(0, 40, 0), Vector(-44, 40, 0)),
], False)
sketch19.addConstraint([
    Sketcher.Constraint("Coincident", 0, 2, 1, 1),
    Sketcher.Constraint("Coincident", 1, 2, 2, 1),
    Sketcher.Constraint("Coincident", 2, 2, 3, 1),
    Sketcher.Constraint("Coincident", 3, 2, 0, 1),
    Sketcher.Constraint("Vertical", 0),
    Sketcher.Constraint("Horizontal", 1),
    Sketcher.Constraint("Vertical", 2),
    Sketcher.Constraint("Horizontal", 3),
    Sketcher.Constraint("PointOnObject", 1, 2, -2),
    Sketcher.Constraint("DistanceX", 1, 1, 1, 2, 44.0),
    Sketcher.Constraint("DistanceY", 0, 2, 0, 1, 25.0),
    Sketcher.Constraint("DistanceY", -1, 1, 0, 2, 15.0),
])
pad19 = doc.addObject("PartDesign::Pad", "Pad018")
body21.addObject(pad19)
pad19.Profile = sketch19
pad19.Length = 35
body22 = doc.addObject("PartDesign::Body", "Body021")

# Sketch on XY plane
sketch20 = doc.addObject("Sketcher::SketchObject", "Sketch019")
body22.addObject(sketch20)
sketch20.AttachmentSupport = (doc.getObject("XY_Plane021"), [""])
sketch20.MapMode = "FlatFace"
sketch20.addGeometry([
    Part.LineSegment(Vector(-67, 40, 0), Vector(-67, -5, 0)),
    Part.LineSegment(Vector(-67, -5, 0), Vector(-44, -5, 0)),
    Part.LineSegment(Vector(-44, -5, 0), Vector(-44, 40, 0)),
    Part.LineSegment(Vector(-44, 40, 0), Vector(-67, 40, 0)),
], False)
sketch20.addConstraint([
    Sketcher.Constraint("Coincident", 0, 2, 1, 1),
    Sketcher.Constraint("Coincident", 1, 2, 2, 1),
    Sketcher.Constraint("Coincident", 2, 2, 3, 1),
    Sketcher.Constraint("Coincident", 3, 2, 0, 1),
    Sketcher.Constraint("Vertical", 0),
    Sketcher.Constraint("Horizontal", 1),
    Sketcher.Constraint("Vertical", 2),
    Sketcher.Constraint("Horizontal", 3),
    Sketcher.Constraint("DistanceX", 1, 1, 1, 2, 23.0),
    Sketcher.Constraint("DistanceY", 0, 2, 0, 1, 45.0),
    Sketcher.Constraint("DistanceX", 0, 2, -1, 1, 67.0),
    Sketcher.Constraint("DistanceY", 0, 2, -1, 1, 5.0),
])
pad20 = doc.addObject("PartDesign::Pad", "Pad019")
body22.addObject(pad20)
pad20.Profile = sketch20
pad20.Length = 35
doc.recompute()

boolean16 = doc.addObject("PartDesign::Boolean", "Boolean015")
body22.addObject(boolean16)
boolean16.Type = "Fuse"
boolean16.addObjects([body21])
doc.recompute()

chamfer10 = doc.addObject("PartDesign::Chamfer", "Chamfer009")
body22.addObject(chamfer10)
chamfer10.Base = (boolean16, edges_at(boolean16, [
    (-67, -5, 17.5),
    (-67, 40, 17.5),
    (-67, 17.5, 0),
    (-55.5, -5, 0),
    (-44, -5, 17.5),
    (-44, 5, 0),
    (-22, 15, 0),
    (0, 15, 17.5),
    (0, 40, 17.5),
    (0, 27.5, 0),
    (-33.5, 40, 0),
]))
chamfer10.Size = 1
doc.recompute()

boolean17 = doc.addObject("PartDesign::Boolean", "Boolean016")
body22.addObject(boolean17)
boolean17.Type = "Cut"
boolean17.addObjects([body20])
doc.recompute()

boolean18 = doc.addObject("PartDesign::Boolean", "Boolean017")
body22.addObject(boolean18)
boolean18.Type = "Fuse"
boolean18.addObjects([body18])
doc.recompute()

boolean19 = doc.addObject("PartDesign::Boolean", "Boolean018")
body22.addObject(boolean19)
boolean19.Type = "Cut"
boolean19.addObjects([body15])
doc.recompute()

boolean20 = doc.addObject("PartDesign::Boolean", "Boolean019")
body22.addObject(boolean20)
boolean20.Type = "Cut"
boolean20.addObjects([body13])
doc.recompute()

chamfer11 = doc.addObject("PartDesign::Chamfer", "Chamfer010")
body22.addObject(chamfer11)
chamfer11.Base = (boolean20, edges_at(boolean20, [
    (-67, 20.5, 35),
    (-66.5, 39.5, 35),
    (-33.5, 40, 35),
    (-0.5, 39.5, 35),
    (0, 27.5, 35),
    (-0.5, 15.5, 35),
    (-23.5, 15, 35),
    (-23.5, 15, 35),
    (-46, 15.5, 35),
    (-45.707, 16.707, 35),
    (-24, 17, 35),
    (-2.293, 17.293, 35),
    (-2, 27.5, 35),
    (-2.293, 37.707, 35),
    (-33.5, 38, 35),
    (-64.707, 37.707, 35),
    (-65, 19.5, 35),
    (-66, 2, 35),
]))
chamfer11.Size = 0.4

doc.recompute()
